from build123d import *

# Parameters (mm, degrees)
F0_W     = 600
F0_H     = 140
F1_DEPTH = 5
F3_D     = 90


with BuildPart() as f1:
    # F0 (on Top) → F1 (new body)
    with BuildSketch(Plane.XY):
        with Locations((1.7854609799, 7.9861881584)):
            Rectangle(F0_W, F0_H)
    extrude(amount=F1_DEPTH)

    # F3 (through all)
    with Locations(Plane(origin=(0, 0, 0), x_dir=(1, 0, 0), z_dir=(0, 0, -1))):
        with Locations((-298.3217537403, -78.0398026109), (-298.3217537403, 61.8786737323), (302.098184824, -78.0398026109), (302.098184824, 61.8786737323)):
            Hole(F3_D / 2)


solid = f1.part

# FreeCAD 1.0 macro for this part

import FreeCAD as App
import Part
import Sketcher


def add_polygon(sketch, points):
    """Adds a closed chain of lines whose ends are joined by coincident constraints."""
    first, n = sketch.GeometryCount, len(points)
    for a, b in zip(points, points[1:] + points[:1]):
        sketch.addGeometry(Part.LineSegment(App.Vector(*a, 0), App.Vector(*b, 0)), False)
    for i in range(n):
        sketch.addConstraint(Sketcher.Constraint("Coincident", first + i, 2, first + (i + 1) % n, 1))

doc = App.newDocument("Part")
body = doc.addObject("PartDesign::Body", "Body")

# Sketch on XY plane
sketch1 = body.newObject("Sketcher::SketchObject", "Sketch")
sketch1.AttachmentSupport = (doc.getObject("XY_Plane"), [""])
sketch1.MapMode = "FlatFace"
add_polygon(sketch1, [(-298, 78), (-298, -62), (302, -62), (302, 78)])  # lines 0-3
sketch1.addConstraint(Sketcher.Constraint("Vertical", 0))
sketch1.addConstraint(Sketcher.Constraint("Horizontal", 1))
sketch1.addConstraint(Sketcher.Constraint("Vertical", 2))
sketch1.addConstraint(Sketcher.Constraint("Horizontal", 3))
sketch1.addConstraint(Sketcher.Constraint("DistanceX", 1, 1, 1, 2, 600.0))
sketch1.addConstraint(Sketcher.Constraint("DistanceY", 0, 2, 0, 1, 140.0))
sketch1.addConstraint(Sketcher.Constraint("DistanceX", 0, 2, -1, 1, 298.214539))
sketch1.addConstraint(Sketcher.Constraint("DistanceY", 0, 2, -1, 1, 62.013812))
pad1 = body.newObject("PartDesign::Pad", "Pad")
pad1.Profile = sketch1
pad1.Length = 5

# Sketch on XY plane
sketch2 = body.newObject("Sketcher::SketchObject", "Sketch001")
sketch2.AttachmentSupport = (doc.getObject("XY_Plane"), [""])
sketch2.MapMode = "FlatFace"
sketch2.addGeometry(Part.Circle(App.Vector(-298, 78, 0), App.Vector(0, 0, 1), 45), False)
sketch2.addGeometry(Part.Circle(App.Vector(-298, -62, 0), App.Vector(0, 0, 1), 45), False)
sketch2.addGeometry(Part.Circle(App.Vector(302, 78, 0), App.Vector(0, 0, 1), 45), False)
sketch2.addGeometry(Part.Circle(App.Vector(302, -62, 0), App.Vector(0, 0, 1), 45), False)
sketch2.addConstraint(Sketcher.Constraint("Equal", 0, 1))
sketch2.addConstraint(Sketcher.Constraint("Equal", 1, 2))
sketch2.addConstraint(Sketcher.Constraint("Equal", 2, 3))
sketch2.addConstraint(Sketcher.Constraint("Horizontal", 0, 3, 2, 3))
sketch2.addConstraint(Sketcher.Constraint("Horizontal", 1, 3, 3, 3))
sketch2.addConstraint(Sketcher.Constraint("Vertical", 0, 3, 1, 3))
sketch2.addConstraint(Sketcher.Constraint("Vertical", 2, 3, 3, 3))
sketch2.addConstraint(Sketcher.Constraint("Diameter", 0, 90.0))
sketch2.addConstraint(Sketcher.Constraint("DistanceX", 0, 3, 2, 3, 600.419939))
sketch2.addConstraint(Sketcher.Constraint("DistanceX", 0, 3, -1, 1, 298.321754))
sketch2.addConstraint(Sketcher.Constraint("DistanceY", -1, 1, 0, 3, 78.039803))
sketch2.addConstraint(Sketcher.Constraint("DistanceY", 1, 3, -1, 1, 61.878674))
doc.recompute()
hole = body.newObject("PartDesign::Hole", "Hole")
hole.Profile = sketch2
hole.ThreadType = "None"
hole.Diameter = 90
hole.DepthType = "ThroughAll"
hole.Reversed = True

doc.recompute()
